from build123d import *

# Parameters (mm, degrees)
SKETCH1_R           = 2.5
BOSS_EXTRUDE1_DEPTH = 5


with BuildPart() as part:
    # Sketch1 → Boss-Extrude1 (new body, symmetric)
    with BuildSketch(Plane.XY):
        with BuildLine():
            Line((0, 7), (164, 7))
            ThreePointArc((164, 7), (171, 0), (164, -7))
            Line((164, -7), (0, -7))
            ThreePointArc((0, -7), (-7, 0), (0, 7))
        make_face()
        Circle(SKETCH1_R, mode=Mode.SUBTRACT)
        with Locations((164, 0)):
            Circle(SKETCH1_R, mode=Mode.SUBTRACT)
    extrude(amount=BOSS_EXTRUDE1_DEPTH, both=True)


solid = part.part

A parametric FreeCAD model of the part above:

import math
import FreeCAD as App
import Part
import Sketcher
Q = App.Units.Quantity

doc = App.newDocument("Part")
body = doc.addObject("PartDesign::Body", "Body")

# Sketch on XY plane
sketch1 = body.newObject("Sketcher::SketchObject", "Sketch")
sketch1.AttachmentSupport = (doc.getObject("XY_Plane"), [""])
sketch1.MapMode = "FlatFace"
sketch1.addGeometry([
    Part.LineSegment(App.Vector(164, 7, 0), App.Vector(0, 7, 0)),  # 0
    Part.ArcOfCircle(Part.Circle(App.Vector(0, 0, 0), App.Vector(0, 0, 1), 7), math.radians(90), math.radians(270)),  # 1
    Part.LineSegment(App.Vector(0, -7, 0), App.Vector(164, -7, 0)),  # 2
    Part.ArcOfCircle(Part.Circle(App.Vector(164, 0, 0), App.Vector(0, 0, 1), 7), math.radians(-90), math.radians(90)),  # 3
    Part.Circle(App.Vector(164, 0, 0), App.Vector(0, 0, 1), 2.5),  # 4
    Part.Circle(App.Vector(0, 0, 0), App.Vector(0, 0, 1), 2.5),  # 5
], False)
sketch1.addConstraint([
    Sketcher.Constraint("Tangent", 0, 2, 1, 1),
    Sketcher.Constraint("Tangent", 1, 2, 2, 1),
    Sketcher.Constraint("Tangent", 2, 2, 3, 1),
    Sketcher.Constraint("Tangent", 3, 2, 0, 1),
    Sketcher.Constraint("Horizontal", 0),
    Sketcher.Constraint("Horizontal", 2),
    Sketcher.Constraint("Coincident", 1, 3, -1, 1),
    Sketcher.Constraint("Coincident", 5, 3, -1, 1),
    Sketcher.Constraint("Coincident", 4, 3, 3, 3),
    Sketcher.Constraint("Equal", 4, 5),
    Sketcher.Constraint("Diameter", 4, Q("5 mm")),
    Sketcher.Constraint("Radius", 1, Q("7 mm")),
    Sketcher.Constraint("DistanceX", 0, 2, 0, 1, Q("164 mm")),
])
pad1 = body.newObject("PartDesign::Pad", "Pad")
pad1.Profile = sketch1
pad1.Length = 10
pad1.Midplane = True

doc.recompute()
